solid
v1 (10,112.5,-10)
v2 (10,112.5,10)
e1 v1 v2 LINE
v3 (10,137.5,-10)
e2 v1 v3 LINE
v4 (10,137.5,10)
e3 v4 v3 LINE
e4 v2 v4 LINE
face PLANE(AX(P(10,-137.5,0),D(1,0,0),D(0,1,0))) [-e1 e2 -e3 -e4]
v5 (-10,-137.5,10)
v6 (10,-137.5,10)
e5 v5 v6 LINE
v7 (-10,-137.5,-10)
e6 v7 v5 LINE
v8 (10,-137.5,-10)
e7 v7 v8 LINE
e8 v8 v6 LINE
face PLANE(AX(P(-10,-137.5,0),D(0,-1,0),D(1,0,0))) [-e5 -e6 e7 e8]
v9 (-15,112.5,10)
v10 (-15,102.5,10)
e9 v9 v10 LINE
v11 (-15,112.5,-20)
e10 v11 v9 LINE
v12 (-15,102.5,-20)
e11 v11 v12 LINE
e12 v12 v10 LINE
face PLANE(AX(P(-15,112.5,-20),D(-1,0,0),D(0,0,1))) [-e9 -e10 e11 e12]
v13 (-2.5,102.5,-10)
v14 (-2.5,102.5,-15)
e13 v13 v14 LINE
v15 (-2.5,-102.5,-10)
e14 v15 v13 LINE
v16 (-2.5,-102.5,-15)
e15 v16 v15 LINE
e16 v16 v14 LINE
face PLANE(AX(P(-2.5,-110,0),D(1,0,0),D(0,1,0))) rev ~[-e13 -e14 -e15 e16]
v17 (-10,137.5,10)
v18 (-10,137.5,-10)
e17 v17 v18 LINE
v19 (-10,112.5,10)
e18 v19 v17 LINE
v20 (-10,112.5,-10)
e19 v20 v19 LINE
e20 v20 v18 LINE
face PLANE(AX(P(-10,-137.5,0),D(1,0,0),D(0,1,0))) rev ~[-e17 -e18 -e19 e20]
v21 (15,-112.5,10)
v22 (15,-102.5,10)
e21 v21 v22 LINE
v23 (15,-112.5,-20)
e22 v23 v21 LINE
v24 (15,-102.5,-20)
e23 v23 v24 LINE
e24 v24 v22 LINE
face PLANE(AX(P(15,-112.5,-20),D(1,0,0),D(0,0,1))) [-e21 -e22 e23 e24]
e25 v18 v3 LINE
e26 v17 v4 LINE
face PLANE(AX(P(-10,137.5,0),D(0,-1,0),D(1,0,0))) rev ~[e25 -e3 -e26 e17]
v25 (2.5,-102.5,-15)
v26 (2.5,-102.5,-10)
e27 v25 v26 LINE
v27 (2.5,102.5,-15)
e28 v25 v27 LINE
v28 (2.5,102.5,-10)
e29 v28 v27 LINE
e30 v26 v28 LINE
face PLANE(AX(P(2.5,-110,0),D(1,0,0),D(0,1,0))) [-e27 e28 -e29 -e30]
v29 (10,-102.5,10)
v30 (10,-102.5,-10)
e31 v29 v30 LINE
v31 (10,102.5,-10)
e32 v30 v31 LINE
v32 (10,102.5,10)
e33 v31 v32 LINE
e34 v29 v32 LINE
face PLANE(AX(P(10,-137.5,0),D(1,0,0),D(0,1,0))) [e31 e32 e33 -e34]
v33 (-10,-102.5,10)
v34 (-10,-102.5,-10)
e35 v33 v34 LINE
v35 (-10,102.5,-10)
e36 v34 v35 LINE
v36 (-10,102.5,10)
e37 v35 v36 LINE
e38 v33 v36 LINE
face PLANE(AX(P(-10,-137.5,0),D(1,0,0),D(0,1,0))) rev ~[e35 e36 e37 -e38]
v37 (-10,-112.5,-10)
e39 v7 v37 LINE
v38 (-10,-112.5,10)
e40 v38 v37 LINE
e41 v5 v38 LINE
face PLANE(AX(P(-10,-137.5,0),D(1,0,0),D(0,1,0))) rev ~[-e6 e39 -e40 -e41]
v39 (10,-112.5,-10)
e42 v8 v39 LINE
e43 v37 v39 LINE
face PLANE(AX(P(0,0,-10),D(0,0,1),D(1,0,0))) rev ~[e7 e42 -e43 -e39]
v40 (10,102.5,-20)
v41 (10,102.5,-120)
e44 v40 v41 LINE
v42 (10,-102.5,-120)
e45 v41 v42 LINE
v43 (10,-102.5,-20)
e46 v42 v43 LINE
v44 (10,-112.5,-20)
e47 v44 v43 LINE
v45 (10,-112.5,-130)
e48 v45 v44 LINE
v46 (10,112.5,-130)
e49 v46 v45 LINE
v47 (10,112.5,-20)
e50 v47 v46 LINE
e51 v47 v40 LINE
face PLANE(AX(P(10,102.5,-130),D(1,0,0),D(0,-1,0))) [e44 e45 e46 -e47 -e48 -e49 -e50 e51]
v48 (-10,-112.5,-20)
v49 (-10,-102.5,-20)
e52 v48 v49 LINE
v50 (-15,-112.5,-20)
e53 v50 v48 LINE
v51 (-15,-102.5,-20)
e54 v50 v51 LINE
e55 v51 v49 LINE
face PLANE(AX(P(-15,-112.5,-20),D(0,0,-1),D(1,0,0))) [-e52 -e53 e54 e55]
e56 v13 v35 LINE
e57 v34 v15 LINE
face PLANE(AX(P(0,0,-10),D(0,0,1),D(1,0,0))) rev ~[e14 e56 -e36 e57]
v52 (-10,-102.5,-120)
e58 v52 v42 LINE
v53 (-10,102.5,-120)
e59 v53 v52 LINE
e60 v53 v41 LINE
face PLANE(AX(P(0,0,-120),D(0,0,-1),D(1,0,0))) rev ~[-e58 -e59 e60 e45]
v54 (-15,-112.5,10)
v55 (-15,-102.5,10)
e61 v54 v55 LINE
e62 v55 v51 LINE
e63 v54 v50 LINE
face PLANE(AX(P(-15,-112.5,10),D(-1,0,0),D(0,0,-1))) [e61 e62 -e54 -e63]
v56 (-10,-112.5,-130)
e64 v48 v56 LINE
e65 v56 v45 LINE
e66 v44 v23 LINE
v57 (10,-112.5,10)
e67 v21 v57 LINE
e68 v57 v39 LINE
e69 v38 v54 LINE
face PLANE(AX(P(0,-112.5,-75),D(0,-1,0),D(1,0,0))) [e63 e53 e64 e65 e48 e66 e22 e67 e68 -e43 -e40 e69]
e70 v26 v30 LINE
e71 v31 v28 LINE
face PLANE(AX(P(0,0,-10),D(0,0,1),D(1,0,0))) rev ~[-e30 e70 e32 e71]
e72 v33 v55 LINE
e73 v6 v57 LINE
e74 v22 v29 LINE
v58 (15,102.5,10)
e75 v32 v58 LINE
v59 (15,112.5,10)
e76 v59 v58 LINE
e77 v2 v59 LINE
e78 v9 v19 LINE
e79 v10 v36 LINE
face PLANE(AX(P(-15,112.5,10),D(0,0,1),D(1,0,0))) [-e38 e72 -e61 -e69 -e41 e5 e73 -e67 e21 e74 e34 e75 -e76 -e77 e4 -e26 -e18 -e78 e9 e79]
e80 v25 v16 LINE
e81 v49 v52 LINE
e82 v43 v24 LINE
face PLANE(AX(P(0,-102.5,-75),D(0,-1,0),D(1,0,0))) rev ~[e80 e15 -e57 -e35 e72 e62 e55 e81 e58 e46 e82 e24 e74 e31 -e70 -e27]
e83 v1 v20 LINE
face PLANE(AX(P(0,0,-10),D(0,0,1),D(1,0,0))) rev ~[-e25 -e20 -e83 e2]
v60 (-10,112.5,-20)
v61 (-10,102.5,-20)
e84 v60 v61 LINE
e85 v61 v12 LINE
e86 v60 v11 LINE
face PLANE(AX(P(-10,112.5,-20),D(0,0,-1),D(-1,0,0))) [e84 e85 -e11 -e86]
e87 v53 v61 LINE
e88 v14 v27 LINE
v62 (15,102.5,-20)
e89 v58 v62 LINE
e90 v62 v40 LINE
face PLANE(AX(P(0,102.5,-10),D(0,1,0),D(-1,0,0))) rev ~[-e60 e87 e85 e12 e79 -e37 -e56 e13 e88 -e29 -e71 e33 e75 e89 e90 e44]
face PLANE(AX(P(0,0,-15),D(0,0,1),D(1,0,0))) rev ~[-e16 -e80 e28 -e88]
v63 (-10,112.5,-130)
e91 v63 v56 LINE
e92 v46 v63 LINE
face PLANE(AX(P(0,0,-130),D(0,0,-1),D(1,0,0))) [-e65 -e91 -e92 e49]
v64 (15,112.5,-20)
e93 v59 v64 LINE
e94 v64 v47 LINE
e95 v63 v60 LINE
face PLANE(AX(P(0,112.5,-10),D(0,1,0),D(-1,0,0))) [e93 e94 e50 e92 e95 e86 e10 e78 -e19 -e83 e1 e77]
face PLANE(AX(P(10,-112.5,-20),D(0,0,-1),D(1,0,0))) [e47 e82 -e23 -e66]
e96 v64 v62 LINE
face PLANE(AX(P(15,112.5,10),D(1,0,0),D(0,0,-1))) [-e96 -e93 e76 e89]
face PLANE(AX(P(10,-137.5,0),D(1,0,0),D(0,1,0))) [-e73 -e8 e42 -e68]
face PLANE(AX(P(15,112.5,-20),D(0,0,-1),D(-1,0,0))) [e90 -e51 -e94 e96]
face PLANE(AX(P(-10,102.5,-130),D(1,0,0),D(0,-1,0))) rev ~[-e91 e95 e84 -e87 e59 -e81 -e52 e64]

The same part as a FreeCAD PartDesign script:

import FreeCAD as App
import Part
import Sketcher
from FreeCAD import Vector
Q = App.Units.Quantity


def add_polygon(sketch, points):
    """Adds a closed chain of lines whose ends are joined by coincident constraints."""
    first, n = sketch.GeometryCount, len(points)
    for a, b in zip(points, points[1:] + points[:1]):
        sketch.addGeometry(Part.LineSegment(App.Vector(*a, 0), App.Vector(*b, 0)), False)
    for i in range(n):
        sketch.addConstraint(Sketcher.Constraint("Coincident", first + i, 2, first + (i + 1) % n, 1))

doc = App.newDocument("Part")
body = doc.addObject("PartDesign::Body", "Body")

# Sketch on XY plane
sketch1 = body.newObject("Sketcher::SketchObject", "Sketch")
sketch1.AttachmentSupport = (doc.getObject("XY_Plane"), [""])
sketch1.MapMode = "FlatFace"
add_polygon(sketch1, [(-10, 138), (-10, -138), (10, -138), (10, 138)])  # lines 0-3
sketch1.addConstraint([
    Sketcher.Constraint("Vertical", 0),
    Sketcher.Constraint("Horizontal", 1),
    Sketcher.Constraint("Vertical", 2),
    Sketcher.Constraint("Horizontal", 3),
    Sketcher.Constraint("Symmetric", 0, 2, 2, 2, -1, 1),
    Sketcher.Constraint("DistanceX", 1, 1, 1, 2, Q("20 mm")),
    Sketcher.Constraint("DistanceY", 0, 2, 0, 1, Q("275 mm")),
])
pad1 = body.newObject("PartDesign::Pad", "Pad")
pad1.Profile = sketch1
pad1.Length = 20
pad1.Midplane = True

# Sketch on XZ plane
sketch2 = body.newObject("Sketcher::SketchObject", "Sketch001")
sketch2.AttachmentSupport = (doc.getObject("XZ_Plane"), [""])
sketch2.MapMode = "FlatFace"
sketch2.AttachmentOffset = App.Placement(Vector(0, 0, 112.5), App.Rotation())
add_polygon(sketch2, [(-10, -130), (10, -130), (10, -20), (15, -20), (15, 10), (-15, 10), (-15, -20), (-10, -20)])  # lines 0-7
sketch2.addConstraint([
    Sketcher.Constraint("Horizontal", 0),
    Sketcher.Constraint("Vertical", 1),
    Sketcher.Constraint("Horizontal", 2),
    Sketcher.Constraint("Vertical", 3),
    Sketcher.Constraint("Horizontal", 4),
    Sketcher.Constraint("Vertical", 5),
    Sketcher.Constraint("Horizontal", 6),
    Sketcher.Constraint("Vertical", 7),
    Sketcher.Constraint("Symmetric", 2, 2, 5, 2, -2),
    Sketcher.Constraint("Equal", 2, 6),
    Sketcher.Constraint("Equal", 4, 3),
    Sketcher.Constraint("DistanceX", 0, 1, 0, 2, Q("20 mm")),
    Sketcher.Constraint("DistanceX", 2, 1, 2, 2, Q("5 mm")),
    Sketcher.Constraint("DistanceY", 1, 1, 1, 2, Q("110 mm")),
    Sketcher.Constraint("DistanceY", 0, 2, -1, 1, Q("130 mm")),
])
pad2 = body.newObject("PartDesign::Pad", "Pad001")
pad2.Profile = sketch2
pad2.Length = 10
pad2.Reversed = True

# Sketch on XZ plane
sketch3 = body.newObject("Sketcher::SketchObject", "Sketch002")
sketch3.AttachmentSupport = (doc.getObject("XZ_Plane"), [""])
sketch3.MapMode = "FlatFace"
sketch3.AttachmentOffset = App.Placement(Vector(0, 0, -112.5), App.Rotation())
add_polygon(sketch3, [(10, -20), (10, -130), (-10, -130), (-10, -20), (-15, -20), (-15, 10), (15, 10), (15, -20)])  # lines 0-7
sketch3.addConstraint([
    Sketcher.Constraint("Vertical", 0),
    Sketcher.Constraint("Horizontal", 1),
    Sketcher.Constraint("Vertical", 2),
    Sketcher.Constraint("Horizontal", 3),
    Sketcher.Constraint("Vertical", 4),
    Sketcher.Constraint("Horizontal", 5),
    Sketcher.Constraint("Vertical", 6),
    Sketcher.Constraint("Horizontal", 7),
    Sketcher.Constraint("Symmetric", 3, 2, 6, 2, -2),
    Sketcher.Constraint("Equal", 3, 7),
    Sketcher.Constraint("Equal", 5, 4),
    Sketcher.Constraint("DistanceX", 1, 2, 1, 1, Q("20 mm")),
    Sketcher.Constraint("DistanceX", 3, 2, 3, 1, Q("5 mm")),
    Sketcher.Constraint("DistanceY", 0, 2, 0, 1, Q("110 mm")),
    Sketcher.Constraint("DistanceY", 0, 2, -1, 1, Q("130 mm")),
])
pad3 = body.newObject("PartDesign::Pad", "Pad002")
pad3.Profile = sketch3
pad3.Length = 10

# Sketch on XY plane
sketch4 = body.newObject("Sketcher::SketchObject", "Sketch003")
sketch4.AttachmentSupport = (doc.getObject("XY_Plane"), [""])
sketch4.MapMode = "FlatFace"
sketch4.AttachmentOffset = App.Placement(Vector(0, 0, -130), App.Rotation())
add_polygon(sketch4, [(-10, -102), (-10, 102), (10, 102), (10, -102)])  # lines 0-3
sketch4.addConstraint([
    Sketcher.Constraint("Vertical", 0),
    Sketcher.Constraint("Horizontal", 1),
    Sketcher.Constraint("Vertical", 2),
    Sketcher.Constraint("Horizontal", 3),
    Sketcher.Constraint("Symmetric", 0, 2, 2, 2, -1, 1),
    Sketcher.Constraint("DistanceX", 1, 1, 1, 2, Q("20 mm")),
    Sketcher.Constraint("DistanceY", 0, 1, 0, 2, Q("205 mm")),
])
pad4 = body.newObject("PartDesign::Pad", "Pad003")
pad4.Profile = sketch4
pad4.Length = 10

# Sketch on XY plane
sketch5 = body.newObject("Sketcher::SketchObject", "Sketch004")
sketch5.AttachmentSupport = (doc.getObject("XY_Plane"), [""])
sketch5.MapMode = "FlatFace"
add_polygon(sketch5, [(-2, 110), (-2, -110), (2, -110), (2, 110)])  # lines 0-3
sketch5.addConstraint([
    Sketcher.Constraint("Vertical", 0),
    Sketcher.Constraint("Horizontal", 1),
    Sketcher.Constraint("Vertical", 2),
    Sketcher.Constraint("Horizontal", 3),
    Sketcher.Constraint("Symmetric", 0, 2, 2, 2, -1, 1),
    Sketcher.Constraint("DistanceX", 1, 1, 1, 2, Q("5 mm")),
    Sketcher.Constraint("DistanceY", 0, 2, 0, 1, Q("220 mm")),
])
pad5 = body.newObject("PartDesign::Pad", "Pad004")
pad5.Profile = sketch5
pad5.Length = 15
pad5.Reversed = True

doc.recompute()
